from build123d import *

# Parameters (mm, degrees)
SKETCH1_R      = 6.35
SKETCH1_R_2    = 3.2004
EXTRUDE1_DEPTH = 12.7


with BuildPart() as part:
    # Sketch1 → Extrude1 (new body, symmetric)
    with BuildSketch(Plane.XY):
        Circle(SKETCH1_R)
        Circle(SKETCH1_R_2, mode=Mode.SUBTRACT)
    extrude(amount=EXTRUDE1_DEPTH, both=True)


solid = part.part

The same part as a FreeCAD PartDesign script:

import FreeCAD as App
import Part
import Sketcher
Q = App.Units.Quantity

doc = App.newDocument("Part")
body = doc.addObject("PartDesign::Body", "Body")

sketch1 = body.newObject("Sketcher::SketchObject", "Sketch")
sketch1.AttachmentSupport = (doc.getObject("XY_Plane"), [""])
sketch1.MapMode = "FlatFace"
sketch1.addGeometry([
    Part.Circle(App.Vector(0, 0, 0), App.Vector(0, 0, 1), 6.3),
    Part.Circle(App.Vector(0, 0, 0), App.Vector(0, 0, 1), 3.2),
], False)
sketch1.addConstraint([
    Sketcher.Constraint("Coincident", 0, 3, -1, 1),
    Sketcher.Constraint("Coincident", 1, 3, -1, 1),
    Sketcher.Constraint("Diameter", 0, Q("0.5 in")),
    Sketcher.Constraint("Diameter", 1, Q("0.252 in")),
])
pad1 = body.newObject("PartDesign::Pad", "Pad")
pad1.Profile = sketch1
pad1.Length = Q("1 in")
pad1.Midplane = True

doc.recompute()
